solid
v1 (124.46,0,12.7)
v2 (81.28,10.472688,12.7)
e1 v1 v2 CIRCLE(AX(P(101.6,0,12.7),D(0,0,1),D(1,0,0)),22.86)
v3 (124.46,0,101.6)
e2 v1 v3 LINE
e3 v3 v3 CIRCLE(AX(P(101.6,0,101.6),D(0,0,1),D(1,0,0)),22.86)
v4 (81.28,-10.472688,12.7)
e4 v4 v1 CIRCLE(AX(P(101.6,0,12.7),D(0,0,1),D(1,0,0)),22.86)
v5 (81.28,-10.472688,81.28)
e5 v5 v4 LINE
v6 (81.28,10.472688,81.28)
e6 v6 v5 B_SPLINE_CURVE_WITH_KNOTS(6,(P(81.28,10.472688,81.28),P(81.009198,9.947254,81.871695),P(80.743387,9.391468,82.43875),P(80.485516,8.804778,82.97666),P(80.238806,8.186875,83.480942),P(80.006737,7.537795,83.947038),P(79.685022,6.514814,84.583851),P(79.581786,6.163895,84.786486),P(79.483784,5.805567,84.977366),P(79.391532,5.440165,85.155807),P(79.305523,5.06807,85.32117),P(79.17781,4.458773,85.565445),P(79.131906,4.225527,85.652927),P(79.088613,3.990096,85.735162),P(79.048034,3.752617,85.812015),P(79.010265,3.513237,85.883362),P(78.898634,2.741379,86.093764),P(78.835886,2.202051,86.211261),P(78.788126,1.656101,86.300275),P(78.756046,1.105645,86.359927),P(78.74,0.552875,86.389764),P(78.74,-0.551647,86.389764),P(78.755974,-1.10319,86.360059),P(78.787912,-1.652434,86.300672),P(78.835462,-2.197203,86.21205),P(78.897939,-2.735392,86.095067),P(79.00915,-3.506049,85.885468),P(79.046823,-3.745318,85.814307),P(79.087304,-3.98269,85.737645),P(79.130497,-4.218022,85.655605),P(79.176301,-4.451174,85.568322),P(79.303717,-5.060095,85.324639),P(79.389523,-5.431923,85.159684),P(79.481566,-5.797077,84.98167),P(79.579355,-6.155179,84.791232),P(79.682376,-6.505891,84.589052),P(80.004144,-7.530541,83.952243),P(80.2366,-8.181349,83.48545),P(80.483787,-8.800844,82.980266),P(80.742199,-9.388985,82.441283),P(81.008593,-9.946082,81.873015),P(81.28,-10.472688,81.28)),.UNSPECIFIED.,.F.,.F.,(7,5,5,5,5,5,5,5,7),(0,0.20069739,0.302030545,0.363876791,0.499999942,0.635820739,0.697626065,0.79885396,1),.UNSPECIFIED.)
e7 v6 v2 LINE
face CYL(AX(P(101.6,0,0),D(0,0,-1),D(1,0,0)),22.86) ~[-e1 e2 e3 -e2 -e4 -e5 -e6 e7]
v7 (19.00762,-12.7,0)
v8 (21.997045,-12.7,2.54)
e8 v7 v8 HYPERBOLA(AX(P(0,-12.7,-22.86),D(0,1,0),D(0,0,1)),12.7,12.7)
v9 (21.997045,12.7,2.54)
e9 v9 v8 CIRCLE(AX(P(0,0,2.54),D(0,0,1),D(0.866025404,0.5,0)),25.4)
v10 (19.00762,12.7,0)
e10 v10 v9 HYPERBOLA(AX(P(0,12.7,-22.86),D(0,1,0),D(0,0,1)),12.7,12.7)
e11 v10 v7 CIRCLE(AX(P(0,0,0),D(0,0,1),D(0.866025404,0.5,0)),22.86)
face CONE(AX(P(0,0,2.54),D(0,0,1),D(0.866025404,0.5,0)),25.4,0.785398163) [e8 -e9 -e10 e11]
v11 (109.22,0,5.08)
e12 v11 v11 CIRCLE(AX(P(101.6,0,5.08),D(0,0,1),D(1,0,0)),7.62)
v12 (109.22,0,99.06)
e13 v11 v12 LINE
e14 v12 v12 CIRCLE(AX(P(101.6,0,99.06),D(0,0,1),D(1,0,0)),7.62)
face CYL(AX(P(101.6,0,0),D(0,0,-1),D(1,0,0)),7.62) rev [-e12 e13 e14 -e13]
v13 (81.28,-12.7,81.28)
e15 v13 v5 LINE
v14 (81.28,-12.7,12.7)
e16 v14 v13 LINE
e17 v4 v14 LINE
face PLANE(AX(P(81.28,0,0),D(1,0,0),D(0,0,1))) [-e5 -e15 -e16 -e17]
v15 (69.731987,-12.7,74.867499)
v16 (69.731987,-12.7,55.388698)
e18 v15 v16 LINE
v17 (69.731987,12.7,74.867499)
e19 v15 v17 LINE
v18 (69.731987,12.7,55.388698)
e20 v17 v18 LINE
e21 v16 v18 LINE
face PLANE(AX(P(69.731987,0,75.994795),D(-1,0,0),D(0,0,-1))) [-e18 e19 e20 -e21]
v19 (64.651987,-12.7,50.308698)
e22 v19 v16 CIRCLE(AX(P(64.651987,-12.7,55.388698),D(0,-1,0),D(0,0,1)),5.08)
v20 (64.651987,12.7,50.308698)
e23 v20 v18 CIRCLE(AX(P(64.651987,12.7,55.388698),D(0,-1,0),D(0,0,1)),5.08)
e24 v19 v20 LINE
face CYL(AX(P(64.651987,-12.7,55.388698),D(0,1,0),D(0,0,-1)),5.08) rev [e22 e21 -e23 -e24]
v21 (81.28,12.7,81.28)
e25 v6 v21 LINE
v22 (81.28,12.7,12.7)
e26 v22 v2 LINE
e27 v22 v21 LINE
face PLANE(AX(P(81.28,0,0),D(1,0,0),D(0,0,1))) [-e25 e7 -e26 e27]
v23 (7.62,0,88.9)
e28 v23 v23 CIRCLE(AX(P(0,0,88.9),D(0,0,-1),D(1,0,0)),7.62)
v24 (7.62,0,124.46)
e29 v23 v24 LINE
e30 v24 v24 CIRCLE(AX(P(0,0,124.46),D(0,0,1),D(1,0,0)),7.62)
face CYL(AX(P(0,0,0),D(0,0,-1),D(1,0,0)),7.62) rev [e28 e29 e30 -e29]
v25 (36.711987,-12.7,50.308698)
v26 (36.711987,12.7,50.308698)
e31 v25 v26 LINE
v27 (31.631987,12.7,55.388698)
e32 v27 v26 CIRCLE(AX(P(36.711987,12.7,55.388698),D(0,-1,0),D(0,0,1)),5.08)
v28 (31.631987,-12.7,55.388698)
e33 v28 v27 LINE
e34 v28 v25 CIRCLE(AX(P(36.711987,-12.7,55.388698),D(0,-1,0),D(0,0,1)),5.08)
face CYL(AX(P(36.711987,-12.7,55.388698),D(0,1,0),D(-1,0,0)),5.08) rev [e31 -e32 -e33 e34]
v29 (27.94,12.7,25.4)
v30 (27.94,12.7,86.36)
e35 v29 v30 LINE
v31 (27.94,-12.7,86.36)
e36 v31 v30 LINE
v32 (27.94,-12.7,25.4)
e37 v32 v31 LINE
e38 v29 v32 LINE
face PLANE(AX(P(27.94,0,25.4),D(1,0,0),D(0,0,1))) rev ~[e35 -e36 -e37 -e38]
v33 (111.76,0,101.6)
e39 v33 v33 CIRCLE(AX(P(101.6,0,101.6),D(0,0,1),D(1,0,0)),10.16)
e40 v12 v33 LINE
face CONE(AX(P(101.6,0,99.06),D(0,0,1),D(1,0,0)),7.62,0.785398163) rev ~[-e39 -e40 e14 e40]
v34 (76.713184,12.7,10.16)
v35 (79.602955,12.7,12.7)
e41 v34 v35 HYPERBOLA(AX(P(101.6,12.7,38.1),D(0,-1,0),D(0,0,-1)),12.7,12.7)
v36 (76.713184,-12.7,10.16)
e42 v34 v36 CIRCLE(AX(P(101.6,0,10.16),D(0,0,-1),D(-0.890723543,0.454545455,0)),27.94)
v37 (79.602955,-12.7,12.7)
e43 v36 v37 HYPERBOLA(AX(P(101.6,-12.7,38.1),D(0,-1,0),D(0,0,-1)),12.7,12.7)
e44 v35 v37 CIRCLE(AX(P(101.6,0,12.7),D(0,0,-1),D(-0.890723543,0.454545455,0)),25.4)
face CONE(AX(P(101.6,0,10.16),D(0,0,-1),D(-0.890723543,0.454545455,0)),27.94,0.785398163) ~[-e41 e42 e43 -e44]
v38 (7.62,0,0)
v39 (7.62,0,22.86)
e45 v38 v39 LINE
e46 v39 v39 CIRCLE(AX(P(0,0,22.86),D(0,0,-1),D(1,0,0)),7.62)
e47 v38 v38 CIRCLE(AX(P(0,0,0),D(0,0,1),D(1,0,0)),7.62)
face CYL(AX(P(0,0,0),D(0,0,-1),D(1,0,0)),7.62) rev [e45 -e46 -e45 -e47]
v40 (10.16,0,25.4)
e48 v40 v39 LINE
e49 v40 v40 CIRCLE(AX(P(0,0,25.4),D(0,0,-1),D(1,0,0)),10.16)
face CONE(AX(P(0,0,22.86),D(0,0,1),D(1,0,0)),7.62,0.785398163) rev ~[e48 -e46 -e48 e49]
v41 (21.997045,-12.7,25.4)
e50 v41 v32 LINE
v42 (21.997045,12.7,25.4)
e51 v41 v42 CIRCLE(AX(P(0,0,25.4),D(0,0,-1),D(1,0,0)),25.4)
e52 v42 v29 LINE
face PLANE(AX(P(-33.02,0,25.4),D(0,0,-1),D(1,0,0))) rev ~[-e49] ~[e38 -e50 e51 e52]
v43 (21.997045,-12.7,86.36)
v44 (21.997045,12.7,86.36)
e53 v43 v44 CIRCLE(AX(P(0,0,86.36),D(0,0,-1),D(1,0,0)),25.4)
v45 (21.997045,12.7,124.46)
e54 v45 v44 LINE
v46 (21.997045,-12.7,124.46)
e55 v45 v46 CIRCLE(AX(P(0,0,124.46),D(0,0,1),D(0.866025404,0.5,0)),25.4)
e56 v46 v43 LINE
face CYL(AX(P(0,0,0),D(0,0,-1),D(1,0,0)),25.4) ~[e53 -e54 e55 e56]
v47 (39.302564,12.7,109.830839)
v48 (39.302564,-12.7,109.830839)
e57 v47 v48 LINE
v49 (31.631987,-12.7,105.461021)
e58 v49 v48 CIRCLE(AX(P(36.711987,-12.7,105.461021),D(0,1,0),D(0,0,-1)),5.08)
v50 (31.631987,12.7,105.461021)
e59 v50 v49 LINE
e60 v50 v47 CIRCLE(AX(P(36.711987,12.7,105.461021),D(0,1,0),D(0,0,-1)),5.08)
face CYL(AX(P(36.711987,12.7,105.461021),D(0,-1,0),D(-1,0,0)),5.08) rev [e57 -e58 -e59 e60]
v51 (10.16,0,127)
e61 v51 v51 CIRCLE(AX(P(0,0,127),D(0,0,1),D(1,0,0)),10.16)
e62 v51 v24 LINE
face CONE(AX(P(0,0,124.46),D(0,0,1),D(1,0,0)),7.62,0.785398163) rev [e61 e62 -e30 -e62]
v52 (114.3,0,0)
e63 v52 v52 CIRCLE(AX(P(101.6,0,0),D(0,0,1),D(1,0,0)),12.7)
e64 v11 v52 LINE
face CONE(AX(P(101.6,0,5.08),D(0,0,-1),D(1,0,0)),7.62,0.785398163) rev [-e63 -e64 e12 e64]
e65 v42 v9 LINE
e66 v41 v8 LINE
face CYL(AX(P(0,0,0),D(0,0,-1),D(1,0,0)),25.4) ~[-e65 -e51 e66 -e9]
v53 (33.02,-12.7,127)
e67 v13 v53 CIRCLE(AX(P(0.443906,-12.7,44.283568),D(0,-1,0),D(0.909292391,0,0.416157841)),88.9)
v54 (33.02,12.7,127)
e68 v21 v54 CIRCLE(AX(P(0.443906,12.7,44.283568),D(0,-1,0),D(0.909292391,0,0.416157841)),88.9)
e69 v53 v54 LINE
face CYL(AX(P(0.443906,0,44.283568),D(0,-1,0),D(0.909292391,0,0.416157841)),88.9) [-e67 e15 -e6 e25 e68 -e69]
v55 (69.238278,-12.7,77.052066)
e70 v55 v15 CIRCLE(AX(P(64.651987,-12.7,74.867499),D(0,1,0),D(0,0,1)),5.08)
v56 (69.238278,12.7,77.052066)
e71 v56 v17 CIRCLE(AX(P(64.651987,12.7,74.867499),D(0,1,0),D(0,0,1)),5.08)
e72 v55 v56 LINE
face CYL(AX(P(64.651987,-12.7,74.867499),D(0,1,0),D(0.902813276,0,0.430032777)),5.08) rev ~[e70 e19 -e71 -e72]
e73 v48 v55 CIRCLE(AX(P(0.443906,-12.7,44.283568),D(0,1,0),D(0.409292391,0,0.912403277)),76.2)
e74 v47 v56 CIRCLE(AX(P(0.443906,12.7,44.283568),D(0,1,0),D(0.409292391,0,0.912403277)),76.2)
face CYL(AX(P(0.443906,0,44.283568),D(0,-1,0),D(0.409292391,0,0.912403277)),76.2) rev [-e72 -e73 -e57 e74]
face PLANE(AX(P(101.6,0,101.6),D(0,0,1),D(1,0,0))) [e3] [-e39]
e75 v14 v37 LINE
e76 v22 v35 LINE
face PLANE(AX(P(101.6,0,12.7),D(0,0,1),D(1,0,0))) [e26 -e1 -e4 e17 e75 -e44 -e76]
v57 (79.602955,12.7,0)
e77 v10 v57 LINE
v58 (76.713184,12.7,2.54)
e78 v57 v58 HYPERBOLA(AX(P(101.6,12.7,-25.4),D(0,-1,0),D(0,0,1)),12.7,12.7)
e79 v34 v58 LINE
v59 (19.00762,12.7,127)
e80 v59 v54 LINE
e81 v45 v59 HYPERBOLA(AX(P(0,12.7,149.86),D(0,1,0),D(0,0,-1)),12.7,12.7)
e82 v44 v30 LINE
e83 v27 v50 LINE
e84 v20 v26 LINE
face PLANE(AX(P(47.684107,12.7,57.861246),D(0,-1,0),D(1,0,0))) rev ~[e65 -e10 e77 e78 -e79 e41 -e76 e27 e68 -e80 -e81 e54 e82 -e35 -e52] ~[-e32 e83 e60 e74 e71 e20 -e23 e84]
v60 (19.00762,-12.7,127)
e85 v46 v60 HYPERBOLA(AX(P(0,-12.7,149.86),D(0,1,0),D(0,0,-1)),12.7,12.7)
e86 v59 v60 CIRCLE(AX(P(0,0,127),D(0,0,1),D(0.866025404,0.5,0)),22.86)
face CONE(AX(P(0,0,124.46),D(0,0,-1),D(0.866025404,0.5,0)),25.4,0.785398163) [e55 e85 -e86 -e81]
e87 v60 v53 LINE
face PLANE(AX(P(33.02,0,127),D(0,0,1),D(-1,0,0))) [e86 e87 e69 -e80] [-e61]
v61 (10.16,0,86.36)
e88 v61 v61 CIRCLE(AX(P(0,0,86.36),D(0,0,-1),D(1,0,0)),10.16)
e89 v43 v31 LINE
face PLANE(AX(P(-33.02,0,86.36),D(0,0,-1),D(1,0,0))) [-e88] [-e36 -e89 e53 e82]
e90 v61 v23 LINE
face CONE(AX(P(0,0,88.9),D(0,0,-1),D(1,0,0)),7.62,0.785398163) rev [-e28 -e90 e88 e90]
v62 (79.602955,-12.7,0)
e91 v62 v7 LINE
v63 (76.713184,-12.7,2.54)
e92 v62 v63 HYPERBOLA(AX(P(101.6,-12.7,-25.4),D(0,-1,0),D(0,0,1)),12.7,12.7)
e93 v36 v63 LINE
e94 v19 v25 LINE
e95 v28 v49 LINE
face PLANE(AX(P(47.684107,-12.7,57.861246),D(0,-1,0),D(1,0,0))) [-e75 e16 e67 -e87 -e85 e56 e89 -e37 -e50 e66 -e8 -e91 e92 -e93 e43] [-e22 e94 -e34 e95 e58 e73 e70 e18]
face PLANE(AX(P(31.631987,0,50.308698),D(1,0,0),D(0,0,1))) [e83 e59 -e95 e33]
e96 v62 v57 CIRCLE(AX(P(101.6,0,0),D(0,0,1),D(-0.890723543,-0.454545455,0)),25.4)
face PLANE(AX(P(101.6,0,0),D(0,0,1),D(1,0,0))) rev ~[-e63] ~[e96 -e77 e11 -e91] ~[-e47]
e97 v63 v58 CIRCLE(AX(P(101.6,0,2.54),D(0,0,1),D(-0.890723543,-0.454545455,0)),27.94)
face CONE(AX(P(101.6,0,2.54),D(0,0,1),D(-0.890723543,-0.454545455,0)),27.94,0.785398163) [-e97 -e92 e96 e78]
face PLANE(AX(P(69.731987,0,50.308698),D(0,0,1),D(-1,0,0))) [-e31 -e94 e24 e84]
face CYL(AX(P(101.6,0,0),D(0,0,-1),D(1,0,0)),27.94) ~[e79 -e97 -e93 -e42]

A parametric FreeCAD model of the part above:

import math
import FreeCAD as App
import Part
import Sketcher
Q = App.Units.Quantity


def edges_at(feature, points):
    """Names of the edges that pass closest to the given points."""
    edges = feature.Shape.Edges
    near = lambda p: min(range(len(edges)), key=lambda i: edges[i].distToShape(Part.Vertex(*p))[0])
    return sorted({f"Edge{near(p) + 1}" for p in points})


def add_polygon(sketch, points):
    """Adds a closed chain of lines whose ends are joined by coincident constraints."""
    first, n = sketch.GeometryCount, len(points)
    for a, b in zip(points, points[1:] + points[:1]):
        sketch.addGeometry(Part.LineSegment(App.Vector(*a, 0), App.Vector(*b, 0)), False)
    for i in range(n):
        sketch.addConstraint(Sketcher.Constraint("Coincident", first + i, 2, first + (i + 1) % n, 1))

doc = App.newDocument("Part")
body = doc.addObject("PartDesign::Body", "Body")

sketch1 = doc.addObject("Sketcher::SketchObject", "Sketch")
body.addObject(sketch1)
sketch1.AttachmentSupport = (doc.XY_Plane, [""])
sketch1.MapMode = "FlatFace"
sketch1.addGeometry(Part.Circle(App.Vector(0, 0, 0), App.Vector(0, 0, 1), 25.4), False)
sketch1.addGeometry(Part.Circle(App.Vector(0, 0, 0), App.Vector(0, 0, 1), 7.62), False)
sketch1.addConstraint(Sketcher.Constraint("Coincident", 0, 3, -1, 1))
sketch1.addConstraint(Sketcher.Constraint("Coincident", 1, 3, -1, 1))
sketch1.addConstraint(Sketcher.Constraint("Diameter", 0, Q("2 in")))
sketch1.addConstraint(Sketcher.Constraint("Diameter", 1, Q("0.6 in")))
pad1 = doc.addObject("PartDesign::Pad", "Pad")
body.addObject(pad1)
pad1.Profile = sketch1
pad1.Length = Q("5 in")
body2 = doc.addObject("PartDesign::Body", "Body001")

sketch2 = doc.addObject("Sketcher::SketchObject", "Sketch001")
body2.addObject(sketch2)
sketch2.AttachmentSupport = (doc.getObject("XY_Plane001"), [""])
sketch2.MapMode = "FlatFace"
sketch2.addGeometry(Part.Circle(App.Vector(101.6, 0, 0), App.Vector(0, 0, 1), 22.86), False)
sketch2.addGeometry(Part.Circle(App.Vector(101.6, 0, 0), App.Vector(0, 0, 1), 7.62), False)
sketch2.addConstraint(Sketcher.Constraint("Coincident", 1, 3, 0, 3))
sketch2.addConstraint(Sketcher.Constraint("PointOnObject", 0, 3, -1))
sketch2.addConstraint(Sketcher.Constraint("Diameter", 0, Q("1.8 in")))
sketch2.addConstraint(Sketcher.Constraint("Diameter", 1, Q("0.6 in")))
sketch2.addConstraint(Sketcher.Constraint("DistanceX", -1, 1, 0, 3, Q("4 in")))
pad2 = doc.addObject("PartDesign::Pad", "Pad001")
body2.addObject(pad2)
pad2.Profile = sketch2
pad2.Length = Q("4 in")
body.AllowCompound = True
doc.recompute()

boolean = doc.addObject("PartDesign::Boolean", "Boolean")
body.addObject(boolean)
boolean.Type = "Fuse"
boolean.addObjects([body2])

sketch3 = doc.addObject("Sketcher::SketchObject", "Sketch002")
body.addObject(sketch3)
sketch3.AttachmentSupport = (doc.XZ_Plane, [""])
sketch3.MapMode = "FlatFace"
sketch3.addGeometry(Part.LineSegment(App.Vector(20.32, 127, 0), App.Vector(20.32, 0, 0)), False)
sketch3.addGeometry(Part.LineSegment(App.Vector(20.32, 0, 0), App.Vector(81.28, 0, 0)), False)
sketch3.addGeometry(Part.LineSegment(App.Vector(81.28, 0, 0), App.Vector(81.28, 81.28, 0)), False)
sketch3.addGeometry(Part.ArcOfCircle(Part.Circle(App.Vector(0.443906, 44.283568, 0), App.Vector(0, 0, 1), 88.9), math.radians(24.592252), math.radians(68.504063)), False)
sketch3.addGeometry(Part.LineSegment(App.Vector(33.02, 127, 0), App.Vector(20.32, 127, 0)), False)
sketch3.addGeometry(Part.LineSegment(App.Vector(31.631987, 50.308698, 0), App.Vector(31.631987, 113.808698, 0)), False)
sketch3.addGeometry(Part.ArcOfCircle(Part.Circle(App.Vector(0.443906, 44.283568, 0), App.Vector(0, 0, 1), 76.2), math.radians(24.592252), math.radians(65.839608)), False)
sketch3.addGeometry(Part.LineSegment(App.Vector(69.731987, 75.994795, 0), App.Vector(69.731987, 50.308698, 0)), False)
sketch3.addGeometry(Part.LineSegment(App.Vector(69.731987, 50.308698, 0), App.Vector(31.631987, 50.308698, 0)), False)
sketch3.addConstraint(Sketcher.Constraint("Coincident", 0, 2, 1, 1))
sketch3.addConstraint(Sketcher.Constraint("Coincident", 1, 2, 2, 1))
sketch3.addConstraint(Sketcher.Constraint("Coincident", 2, 2, 3, 1))
sketch3.addConstraint(Sketcher.Constraint("Coincident", 3, 2, 4, 1))
sketch3.addConstraint(Sketcher.Constraint("Coincident", 4, 2, 0, 1))
sketch3.addConstraint(Sketcher.Constraint("Coincident", 5, 2, 6, 2))
sketch3.addConstraint(Sketcher.Constraint("Coincident", 6, 1, 7, 1))
sketch3.addConstraint(Sketcher.Constraint("Coincident", 7, 2, 8, 1))
sketch3.addConstraint(Sketcher.Constraint("Coincident", 8, 2, 5, 1))
sketch3.addConstraint(Sketcher.Constraint("Vertical", 0))
sketch3.addConstraint(Sketcher.Constraint("Horizontal", 1))
sketch3.addConstraint(Sketcher.Constraint("Vertical", 2))
sketch3.addConstraint(Sketcher.Constraint("Horizontal", 4))
sketch3.addConstraint(Sketcher.Constraint("Vertical", 5))
sketch3.addConstraint(Sketcher.Constraint("Vertical", 7))
sketch3.addConstraint(Sketcher.Constraint("Horizontal", 8))
sketch3.addConstraint(Sketcher.Constraint("Coincident", 6, 3, 3, 3))
sketch3.addConstraint(Sketcher.Constraint("PointOnObject", 0, 2, -1))
sketch3.addConstraint(Sketcher.Constraint("Radius", 6, Q("3 in")))
sketch3.addConstraint(Sketcher.Constraint("Radius", 3, Q("3.5 in")))
sketch3.addConstraint(Sketcher.Constraint("DistanceY", 0, 2, 0, 1, Q("5 in")))
sketch3.addConstraint(Sketcher.Constraint("DistanceX", 1, 1, 1, 2, Q("2.4 in")))
sketch3.addConstraint(Sketcher.Constraint("DistanceX", 4, 2, 4, 1, Q("0.5 in")))
sketch3.addConstraint(Sketcher.Constraint("DistanceX", 8, 2, 8, 1, Q("1.5 in")))
sketch3.addConstraint(Sketcher.Constraint("DistanceY", 2, 1, 2, 2, Q("3.2 in")))
sketch3.addConstraint(Sketcher.Constraint("DistanceY", 5, 1, 5, 2, Q("2.5 in")))
sketch3.addConstraint(Sketcher.Constraint("DistanceX", -1, 1, 0, 2, Q("0.8 in")))
sketch3.addConstraint(Sketcher.Constraint("DistanceY", 7, 2, 7, 1, Q("25.686098 mm")))
pad3 = doc.addObject("PartDesign::Pad", "Pad002")
body.addObject(pad3)
pad3.Profile = sketch3
pad3.Length = Q("1 in")
pad3.Midplane = True

sketch4 = doc.addObject("Sketcher::SketchObject", "Sketch003")
body.addObject(sketch4)
sketch4.AttachmentSupport = (doc.XZ_Plane, [""])
sketch4.MapMode = "FlatFace"
add_polygon(sketch4, [(-33.02, 86.36), (-33.02, 25.4), (27.94, 25.4), (27.94, 86.36)])
sketch4.addConstraint(Sketcher.Constraint("Vertical", 0))
sketch4.addConstraint(Sketcher.Constraint("Horizontal", 1))
sketch4.addConstraint(Sketcher.Constraint("Vertical", 2))
sketch4.addConstraint(Sketcher.Constraint("Horizontal", 3))
sketch4.addConstraint(Sketcher.Constraint("Equal", 3, 0))
sketch4.addConstraint(Sketcher.Constraint("DistanceX", 1, 1, 1, 2, Q("2.4 in")))
sketch4.addConstraint(Sketcher.Constraint("DistanceY", -1, 1, 0, 2, Q("1 in")))
sketch4.addConstraint(Sketcher.Constraint("DistanceX", 0, 2, -1, 1, Q("1.3 in")))
pocket1 = doc.addObject("PartDesign::Pocket", "Pocket")
body.addObject(pocket1)
pocket1.Profile = sketch4
pocket1.Length = Q("4 in")
pocket1.Midplane = True
doc.recompute()

fillet = doc.addObject("PartDesign::Fillet", "Fillet")
body.addObject(fillet)
fillet.Base = (pocket1, edges_at(pocket1, [
    (31.632, 0, 50.309),
    (31.632, 0, 113.809),
    (69.732, 0, 50.309),
    (69.732, 0, 75.995),
]))
fillet.Radius = Q("0.2 in")
doc.recompute()

chamfer = doc.addObject("PartDesign::Chamfer", "Chamfer")
body.addObject(chamfer)
chamfer.Base = (fillet, edges_at(fillet, [
    (-25.4, 0, 127),
    (-25.4, 0, 0),
    (-7.62, 0, 86.36),
    (-7.62, 0, 25.4),
]))
chamfer.Size = Q("0.1 in")

sketch5 = doc.addObject("Sketcher::SketchObject", "Sketch004")
body.addObject(sketch5)
sketch5.AttachmentSupport = (doc.XY_Plane, [""])
sketch5.MapMode = "FlatFace"
sketch5.addGeometry(Part.Circle(App.Vector(101.6, 0, 0), App.Vector(0, 0, 1), 27.94), False)
sketch5.addGeometry(Part.Circle(App.Vector(101.6, 0, 0), App.Vector(0, 0, 1), 22.86), False)
sketch5.addConstraint(Sketcher.Constraint("Coincident", 1, 3, 0, 3))
sketch5.addConstraint(Sketcher.Constraint("PointOnObject", 0, 3, -1))
sketch5.addConstraint(Sketcher.Constraint("Diameter", 0, Q("2.2 in")))
sketch5.addConstraint(Sketcher.Constraint("Diameter", 1, Q("1.8 in")))
sketch5.addConstraint(Sketcher.Constraint("DistanceX", -1, 1, 0, 3, Q("4 in")))
pad4 = doc.addObject("PartDesign::Pad", "Pad003")
body.addObject(pad4)
pad4.Profile = sketch5
pad4.Length = Q("0.5 in")
doc.recompute()

chamfer2 = doc.addObject("PartDesign::Chamfer", "Chamfer001")
body.addObject(chamfer2)
chamfer2.Base = (pad4, edges_at(pad4, [(93.98, 0, 0)]))
chamfer2.Size = Q("0.2 in")
doc.recompute()

chamfer3 = doc.addObject("PartDesign::Chamfer", "Chamfer002")
body.addObject(chamfer3)
chamfer3.Base = (chamfer2, edges_at(chamfer2, [(93.98, 0, 101.6)]))
chamfer3.Size = Q("0.1 in")
doc.recompute()

chamfer4 = doc.addObject("PartDesign::Chamfer", "Chamfer003")
body.addObject(chamfer4)
chamfer4.Base = (chamfer3, edges_at(chamfer3, [(129.54, 0, 12.7), (129.54, 0, 0)]))
chamfer4.Size = Q("0.1 in")
doc.recompute()

chamfer5 = doc.addObject("PartDesign::Chamfer", "Chamfer004")
body.addObject(chamfer5)
chamfer5.Base = (chamfer4, edges_at(chamfer4, [(-7.62, 0, 127)]))
chamfer5.Size = Q("0.1 in")

doc.recompute()
